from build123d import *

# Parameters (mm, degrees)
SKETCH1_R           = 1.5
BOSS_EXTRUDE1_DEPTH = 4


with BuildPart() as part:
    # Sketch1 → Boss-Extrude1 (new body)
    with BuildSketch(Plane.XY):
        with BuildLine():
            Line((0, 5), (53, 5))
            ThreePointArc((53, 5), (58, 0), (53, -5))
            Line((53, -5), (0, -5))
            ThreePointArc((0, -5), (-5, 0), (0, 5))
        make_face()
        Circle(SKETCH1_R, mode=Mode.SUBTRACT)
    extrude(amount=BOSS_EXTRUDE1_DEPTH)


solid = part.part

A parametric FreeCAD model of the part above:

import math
import FreeCAD as App
import Part
import Sketcher
Q = App.Units.Quantity

doc = App.newDocument("Part")
body = doc.addObject("PartDesign::Body", "Body")

# Sketch on XY plane
sketch1 = doc.addObject("Sketcher::SketchObject", "Sketch")
body.addObject(sketch1)
sketch1.AttachmentSupport = (doc.XY_Plane, [""])
sketch1.MapMode = "FlatFace"
sketch1.addGeometry(Part.LineSegment(App.Vector(53, 5, 0), App.Vector(0, 5, 0)), False)
sketch1.addGeometry(Part.ArcOfCircle(Part.Circle(App.Vector(0, 0, 0), App.Vector(0, 0, 1), 5), math.radians(90), math.radians(270)), False)
sketch1.addGeometry(Part.LineSegment(App.Vector(0, -5, 0), App.Vector(53, -5, 0)), False)
sketch1.addGeometry(Part.ArcOfCircle(Part.Circle(App.Vector(53, 0, 0), App.Vector(0, 0, 1), 5), math.radians(-90), math.radians(90)), False)
sketch1.addGeometry(Part.Circle(App.Vector(0, 0, 0), App.Vector(0, 0, 1), 1.5), False)
sketch1.addConstraint(Sketcher.Constraint("Tangent", 0, 2, 1, 1))
sketch1.addConstraint(Sketcher.Constraint("Tangent", 1, 2, 2, 1))
sketch1.addConstraint(Sketcher.Constraint("Tangent", 2, 2, 3, 1))
sketch1.addConstraint(Sketcher.Constraint("Tangent", 3, 2, 0, 1))
sketch1.addConstraint(Sketcher.Constraint("Horizontal", 0))
sketch1.addConstraint(Sketcher.Constraint("Horizontal", 2))
sketch1.addConstraint(Sketcher.Constraint("Coincident", 1, 3, -1, 1))
sketch1.addConstraint(Sketcher.Constraint("Coincident", 4, 3, -1, 1))
sketch1.addConstraint(Sketcher.Constraint("Diameter", 4, Q("3 mm")))
sketch1.addConstraint(Sketcher.Constraint("Radius", 1, Q("5 mm")))
sketch1.addConstraint(Sketcher.Constraint("DistanceX", 0, 2, 0, 1, Q("53 mm")))
pad1 = doc.addObject("PartDesign::Pad", "Pad")
body.addObject(pad1)
pad1.Profile = sketch1
pad1.Length = 4

doc.recompute()
